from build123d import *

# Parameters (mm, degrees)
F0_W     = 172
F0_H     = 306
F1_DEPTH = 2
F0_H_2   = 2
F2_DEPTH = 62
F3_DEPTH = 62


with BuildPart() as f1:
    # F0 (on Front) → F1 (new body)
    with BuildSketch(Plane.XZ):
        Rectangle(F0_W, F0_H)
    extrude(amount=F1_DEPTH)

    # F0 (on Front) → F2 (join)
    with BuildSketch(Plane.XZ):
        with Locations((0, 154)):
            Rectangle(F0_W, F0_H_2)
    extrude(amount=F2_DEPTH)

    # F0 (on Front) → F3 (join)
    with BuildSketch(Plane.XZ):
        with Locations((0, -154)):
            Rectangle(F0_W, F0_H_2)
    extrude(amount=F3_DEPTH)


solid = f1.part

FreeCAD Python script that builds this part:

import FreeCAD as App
import Part
import Sketcher
Q = App.Units.Quantity


def add_polygon(sketch, points):
    """Adds a closed chain of lines whose ends are joined by coincident constraints."""
    first, n = sketch.GeometryCount, len(points)
    for a, b in zip(points, points[1:] + points[:1]):
        sketch.addGeometry(Part.LineSegment(App.Vector(*a, 0), App.Vector(*b, 0)), False)
    for i in range(n):
        sketch.addConstraint(Sketcher.Constraint("Coincident", first + i, 2, first + (i + 1) % n, 1))

doc = App.newDocument("Part")
params = doc.addObject("Spreadsheet::Sheet", "Params")
for row, (alias, value) in enumerate([
    ("sketch1_width", "172 mm"),
    ("sketch1_height", "306 mm"),
    ("pad1_length", "2 mm"),
    ("sketch2_width", "172 mm"),
    ("sketch2_height", "2 mm"),
    ("pad2_length", "62 mm"),
    ("sketch3_width", "172 mm"),
    ("sketch3_height", "2 mm"),
    ("pad3_length", "62 mm"),
], start=1):
    params.set(f"A{row}", alias)
    params.set(f"B{row}", "=" + value)
    params.setAlias(f"B{row}", alias)

body = doc.addObject("PartDesign::Body", "Body")

sketch1 = body.newObject("Sketcher::SketchObject", "Sketch")
sketch1.AttachmentSupport = (doc.getObject("XZ_Plane"), [""])
sketch1.MapMode = "FlatFace"
add_polygon(sketch1, [(-86, 153), (-86, -153), (86, -153), (86, 153)])
sketch1.addConstraint([
    Sketcher.Constraint("Vertical", 0),
    Sketcher.Constraint("Horizontal", 1),
    Sketcher.Constraint("Vertical", 2),
    Sketcher.Constraint("Horizontal", 3),
    Sketcher.Constraint("Symmetric", 0, 2, 2, 2, -1, 1),
    Sketcher.Constraint("DistanceX", 1, 1, 1, 2, Q("172 mm")),
    Sketcher.Constraint("DistanceY", 0, 2, 0, 1, Q("306 mm")),
])
sketch1.setExpression("Constraints[9]", "Params.sketch1_width")
sketch1.setExpression("Constraints[10]", "Params.sketch1_height")
pad1 = body.newObject("PartDesign::Pad", "Pad")
pad1.Profile = sketch1
pad1.setExpression("Length", "Params.pad1_length")

sketch2 = body.newObject("Sketcher::SketchObject", "Sketch001")
sketch2.AttachmentSupport = (doc.getObject("XZ_Plane"), [""])
sketch2.MapMode = "FlatFace"
add_polygon(sketch2, [(-86, 155), (-86, 153), (86, 153), (86, 155)])
sketch2.addConstraint([
    Sketcher.Constraint("Vertical", 0),
    Sketcher.Constraint("Horizontal", 1),
    Sketcher.Constraint("Vertical", 2),
    Sketcher.Constraint("Horizontal", 3),
    Sketcher.Constraint("DistanceX", 1, 1, 1, 2, Q("172 mm")),
    Sketcher.Constraint("DistanceY", 0, 2, 0, 1, Q("2 mm")),
    Sketcher.Constraint("DistanceX", 0, 2, -1, 1, Q("86 mm")),
    Sketcher.Constraint("DistanceY", -1, 1, 0, 2, Q("153 mm")),
])
sketch2.setExpression("Constraints[8]", "Params.sketch2_width")
sketch2.setExpression("Constraints[9]", "Params.sketch2_height")
pad2 = body.newObject("PartDesign::Pad", "Pad001")
pad2.Profile = sketch2
pad2.setExpression("Length", "Params.pad2_length")

sketch3 = body.newObject("Sketcher::SketchObject", "Sketch002")
sketch3.AttachmentSupport = (doc.getObject("XZ_Plane"), [""])
sketch3.MapMode = "FlatFace"
add_polygon(sketch3, [(-86, -153), (-86, -155), (86, -155), (86, -153)])
sketch3.addConstraint([
    Sketcher.Constraint("Vertical", 0),
    Sketcher.Constraint("Horizontal", 1),
    Sketcher.Constraint("Vertical", 2),
    Sketcher.Constraint("Horizontal", 3),
    Sketcher.Constraint("DistanceX", 1, 1, 1, 2, Q("172 mm")),
    Sketcher.Constraint("DistanceY", 0, 2, 0, 1, Q("2 mm")),
    Sketcher.Constraint("DistanceX", 0, 2, -1, 1, Q("86 mm")),
    Sketcher.Constraint("DistanceY", 0, 2, -1, 1, Q("155 mm")),
])
sketch3.setExpression("Constraints[8]", "Params.sketch3_width")
sketch3.setExpression("Constraints[9]", "Params.sketch3_height")
pad3 = body.newObject("PartDesign::Pad", "Pad002")
pad3.Profile = sketch3
pad3.setExpression("Length", "Params.pad3_length")

doc.recompute()
